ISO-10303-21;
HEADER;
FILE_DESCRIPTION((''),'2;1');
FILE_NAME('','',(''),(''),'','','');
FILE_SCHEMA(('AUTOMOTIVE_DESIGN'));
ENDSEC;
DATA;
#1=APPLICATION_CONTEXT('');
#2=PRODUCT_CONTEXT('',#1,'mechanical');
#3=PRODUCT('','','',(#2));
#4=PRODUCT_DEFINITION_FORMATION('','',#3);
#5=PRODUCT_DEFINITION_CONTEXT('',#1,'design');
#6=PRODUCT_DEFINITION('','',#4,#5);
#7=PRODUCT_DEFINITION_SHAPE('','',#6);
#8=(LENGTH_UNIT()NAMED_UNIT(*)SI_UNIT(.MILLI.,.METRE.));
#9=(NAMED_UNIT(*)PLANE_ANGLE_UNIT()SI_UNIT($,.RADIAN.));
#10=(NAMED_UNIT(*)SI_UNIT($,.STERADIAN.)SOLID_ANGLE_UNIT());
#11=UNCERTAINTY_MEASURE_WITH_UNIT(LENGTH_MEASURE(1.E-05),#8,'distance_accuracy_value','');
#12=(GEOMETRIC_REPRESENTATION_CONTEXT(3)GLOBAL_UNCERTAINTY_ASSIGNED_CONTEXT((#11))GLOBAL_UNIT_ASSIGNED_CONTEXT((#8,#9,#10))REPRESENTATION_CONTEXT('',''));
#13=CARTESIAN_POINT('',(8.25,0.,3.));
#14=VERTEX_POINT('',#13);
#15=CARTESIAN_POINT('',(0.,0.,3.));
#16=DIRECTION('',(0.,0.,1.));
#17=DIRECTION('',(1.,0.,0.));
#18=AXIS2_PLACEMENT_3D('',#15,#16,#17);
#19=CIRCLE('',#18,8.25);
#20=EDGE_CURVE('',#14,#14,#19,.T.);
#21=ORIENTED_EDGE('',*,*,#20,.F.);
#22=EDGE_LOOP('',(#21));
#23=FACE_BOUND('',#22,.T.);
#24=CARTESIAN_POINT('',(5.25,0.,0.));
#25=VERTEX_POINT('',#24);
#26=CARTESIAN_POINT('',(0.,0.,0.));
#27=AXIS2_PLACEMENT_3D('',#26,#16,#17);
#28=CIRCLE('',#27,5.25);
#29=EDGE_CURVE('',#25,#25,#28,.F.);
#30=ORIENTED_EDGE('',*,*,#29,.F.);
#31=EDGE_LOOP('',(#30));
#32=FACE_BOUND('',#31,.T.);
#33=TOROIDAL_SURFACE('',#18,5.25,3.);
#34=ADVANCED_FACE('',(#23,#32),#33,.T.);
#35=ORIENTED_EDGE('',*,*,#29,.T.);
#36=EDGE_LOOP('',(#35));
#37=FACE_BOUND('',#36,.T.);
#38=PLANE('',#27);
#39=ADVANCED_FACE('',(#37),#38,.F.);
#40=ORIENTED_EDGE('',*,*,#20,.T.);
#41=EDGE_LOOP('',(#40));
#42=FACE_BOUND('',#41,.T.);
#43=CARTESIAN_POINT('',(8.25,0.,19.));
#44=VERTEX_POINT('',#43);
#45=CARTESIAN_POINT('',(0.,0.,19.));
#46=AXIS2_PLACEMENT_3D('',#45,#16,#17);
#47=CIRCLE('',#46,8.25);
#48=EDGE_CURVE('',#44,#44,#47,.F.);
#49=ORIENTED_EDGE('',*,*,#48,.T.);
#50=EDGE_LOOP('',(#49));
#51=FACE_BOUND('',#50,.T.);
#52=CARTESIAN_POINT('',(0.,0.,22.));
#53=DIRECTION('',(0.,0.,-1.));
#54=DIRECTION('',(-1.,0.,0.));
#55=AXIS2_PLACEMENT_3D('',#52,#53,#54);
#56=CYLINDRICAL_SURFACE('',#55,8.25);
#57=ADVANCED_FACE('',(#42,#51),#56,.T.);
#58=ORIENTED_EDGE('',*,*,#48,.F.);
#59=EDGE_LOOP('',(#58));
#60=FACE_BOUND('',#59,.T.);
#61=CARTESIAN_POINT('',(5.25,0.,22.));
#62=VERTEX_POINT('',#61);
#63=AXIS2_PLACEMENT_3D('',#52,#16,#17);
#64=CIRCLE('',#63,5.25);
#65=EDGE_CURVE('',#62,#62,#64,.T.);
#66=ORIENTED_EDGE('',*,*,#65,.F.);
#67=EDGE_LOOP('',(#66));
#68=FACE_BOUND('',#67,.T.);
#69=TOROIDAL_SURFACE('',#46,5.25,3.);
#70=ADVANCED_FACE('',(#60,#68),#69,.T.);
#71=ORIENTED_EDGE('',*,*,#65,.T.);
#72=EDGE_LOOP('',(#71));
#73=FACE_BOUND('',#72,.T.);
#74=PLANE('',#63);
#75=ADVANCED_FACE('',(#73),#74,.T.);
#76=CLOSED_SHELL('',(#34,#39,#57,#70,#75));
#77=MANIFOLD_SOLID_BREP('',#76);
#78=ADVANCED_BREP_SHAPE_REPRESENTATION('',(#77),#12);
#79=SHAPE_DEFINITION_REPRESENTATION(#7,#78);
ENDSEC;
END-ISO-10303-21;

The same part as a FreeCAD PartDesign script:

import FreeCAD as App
import Part
import Sketcher


def edges_at(feature, points):
    """Names of the edges that pass closest to the given points."""
    edges = feature.Shape.Edges
    near = lambda p: min(range(len(edges)), key=lambda i: edges[i].distToShape(Part.Vertex(*p))[0])
    return sorted({f"Edge{near(p) + 1}" for p in points})

doc = App.newDocument("Part")
body = doc.addObject("PartDesign::Body", "Body")

sketch1 = doc.addObject("Sketcher::SketchObject", "Sketch")
body.addObject(sketch1)
sketch1.AttachmentSupport = (doc.XY_Plane, [""])
sketch1.MapMode = "FlatFace"
sketch1.addGeometry(Part.Circle(App.Vector(0, 0, 0), App.Vector(0, 0, 1), 8), False)
sketch1.addConstraint([
    Sketcher.Constraint("Coincident", 0, 3, -1, 1),
    Sketcher.Constraint("Diameter", 0, 16.5),
])
pad1 = doc.addObject("PartDesign::Pad", "Pad")
body.addObject(pad1)
pad1.Profile = sketch1
pad1.Length = 22
doc.recompute()

fillet = doc.addObject("PartDesign::Fillet", "Fillet")
body.addObject(fillet)
fillet.Base = (pad1, edges_at(pad1, [(-8.25, 0, 0), (-8.25, 0, 22)]))
fillet.Radius = 3

doc.recompute()
